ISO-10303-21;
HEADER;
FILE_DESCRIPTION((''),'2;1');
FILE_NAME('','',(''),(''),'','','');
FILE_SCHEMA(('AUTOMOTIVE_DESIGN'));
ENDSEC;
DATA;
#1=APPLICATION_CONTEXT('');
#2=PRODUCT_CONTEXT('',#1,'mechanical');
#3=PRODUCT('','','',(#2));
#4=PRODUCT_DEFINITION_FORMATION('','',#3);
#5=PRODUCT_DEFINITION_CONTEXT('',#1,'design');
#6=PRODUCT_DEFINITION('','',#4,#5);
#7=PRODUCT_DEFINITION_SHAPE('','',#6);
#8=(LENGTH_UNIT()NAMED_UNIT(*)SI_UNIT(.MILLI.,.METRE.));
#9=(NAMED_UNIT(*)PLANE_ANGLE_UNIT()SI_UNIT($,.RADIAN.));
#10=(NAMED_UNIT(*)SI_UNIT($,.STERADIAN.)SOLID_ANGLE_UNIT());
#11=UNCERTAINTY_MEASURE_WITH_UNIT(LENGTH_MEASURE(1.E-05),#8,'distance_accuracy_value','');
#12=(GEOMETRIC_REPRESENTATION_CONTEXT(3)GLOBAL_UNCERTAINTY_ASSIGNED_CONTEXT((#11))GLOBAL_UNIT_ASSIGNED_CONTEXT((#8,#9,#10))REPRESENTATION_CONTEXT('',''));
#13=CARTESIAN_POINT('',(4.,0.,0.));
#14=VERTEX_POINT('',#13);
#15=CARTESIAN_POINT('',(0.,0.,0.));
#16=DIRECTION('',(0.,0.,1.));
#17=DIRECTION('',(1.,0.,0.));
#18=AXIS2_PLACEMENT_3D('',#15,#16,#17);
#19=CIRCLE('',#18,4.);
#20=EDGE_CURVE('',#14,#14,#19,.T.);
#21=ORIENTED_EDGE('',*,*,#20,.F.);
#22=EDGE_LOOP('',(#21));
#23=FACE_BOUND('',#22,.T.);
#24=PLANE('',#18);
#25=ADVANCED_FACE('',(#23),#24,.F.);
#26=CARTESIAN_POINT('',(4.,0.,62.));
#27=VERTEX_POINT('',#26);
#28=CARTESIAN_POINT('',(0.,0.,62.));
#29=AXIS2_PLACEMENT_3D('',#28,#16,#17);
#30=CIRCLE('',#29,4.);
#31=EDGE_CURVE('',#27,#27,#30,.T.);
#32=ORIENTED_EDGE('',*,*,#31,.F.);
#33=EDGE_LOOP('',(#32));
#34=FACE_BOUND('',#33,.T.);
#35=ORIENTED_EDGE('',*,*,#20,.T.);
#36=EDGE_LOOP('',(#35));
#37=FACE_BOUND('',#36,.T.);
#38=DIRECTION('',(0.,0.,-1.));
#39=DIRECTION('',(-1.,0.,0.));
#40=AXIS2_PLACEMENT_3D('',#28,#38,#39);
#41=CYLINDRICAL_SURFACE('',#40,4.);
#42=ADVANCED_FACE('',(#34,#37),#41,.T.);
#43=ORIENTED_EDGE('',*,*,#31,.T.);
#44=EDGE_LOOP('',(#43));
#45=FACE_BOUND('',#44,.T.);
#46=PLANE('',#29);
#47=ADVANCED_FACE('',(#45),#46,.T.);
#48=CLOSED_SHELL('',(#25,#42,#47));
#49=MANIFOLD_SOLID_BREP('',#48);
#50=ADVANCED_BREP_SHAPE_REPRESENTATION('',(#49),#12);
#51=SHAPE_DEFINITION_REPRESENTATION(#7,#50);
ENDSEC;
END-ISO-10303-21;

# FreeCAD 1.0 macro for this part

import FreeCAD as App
import Part
import Sketcher

V = App.Vector

doc = App.newDocument("Part")
body = doc.addObject("PartDesign::Body", "Body")

# Sketch on XY plane
sketch1 = body.newObject("Sketcher::SketchObject", "Sketch")
sketch1.AttachmentSupport = (doc.getObject("XY_Plane"), [""])
sketch1.MapMode = "FlatFace"
sketch1.addGeometry(Part.Circle(V(0, 0, 0), V(0, 0, 1), 4), False)
sketch1.addConstraint([
    Sketcher.Constraint("Coincident", 0, 3, -1, 1),
    Sketcher.Constraint("Diameter", 0, 8.0),
])
pad1 = body.newObject("PartDesign::Pad", "Pad")
pad1.Profile = sketch1
pad1.Length = 62

doc.recompute()
